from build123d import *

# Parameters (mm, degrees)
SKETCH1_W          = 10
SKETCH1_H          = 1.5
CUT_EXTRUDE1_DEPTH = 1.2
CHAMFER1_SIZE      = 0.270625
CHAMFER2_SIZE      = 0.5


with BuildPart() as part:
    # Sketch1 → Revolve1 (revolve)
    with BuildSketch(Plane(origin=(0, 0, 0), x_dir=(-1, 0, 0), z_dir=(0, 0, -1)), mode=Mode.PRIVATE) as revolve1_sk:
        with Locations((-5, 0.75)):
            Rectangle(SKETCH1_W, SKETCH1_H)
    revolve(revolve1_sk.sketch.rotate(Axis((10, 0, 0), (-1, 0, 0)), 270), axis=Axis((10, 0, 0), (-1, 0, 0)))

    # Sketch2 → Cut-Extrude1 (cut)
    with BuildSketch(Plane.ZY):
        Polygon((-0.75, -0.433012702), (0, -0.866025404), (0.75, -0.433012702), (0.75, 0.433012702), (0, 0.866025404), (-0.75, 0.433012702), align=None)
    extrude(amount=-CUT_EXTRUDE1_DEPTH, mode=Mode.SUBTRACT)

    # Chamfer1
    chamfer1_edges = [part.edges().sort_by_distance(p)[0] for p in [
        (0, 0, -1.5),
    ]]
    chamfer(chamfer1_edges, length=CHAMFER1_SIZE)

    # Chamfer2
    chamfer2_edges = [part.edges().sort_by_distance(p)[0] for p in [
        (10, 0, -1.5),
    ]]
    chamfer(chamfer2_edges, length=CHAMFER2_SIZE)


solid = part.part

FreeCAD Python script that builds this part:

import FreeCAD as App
import Part
import Sketcher
Q = App.Units.Quantity


def edges_at(feature, points):
    """Names of the edges that pass closest to the given points."""
    edges = feature.Shape.Edges
    near = lambda p: min(range(len(edges)), key=lambda i: edges[i].distToShape(Part.Vertex(*p))[0])
    return sorted({f"Edge{near(p) + 1}" for p in points})


def add_polygon(sketch, points):
    """Adds a closed chain of lines whose ends are joined by coincident constraints."""
    first, n = sketch.GeometryCount, len(points)
    for a, b in zip(points, points[1:] + points[:1]):
        sketch.addGeometry(Part.LineSegment(App.Vector(*a, 0), App.Vector(*b, 0)), False)
    for i in range(n):
        sketch.addConstraint(Sketcher.Constraint("Coincident", first + i, 2, first + (i + 1) % n, 1))

doc = App.newDocument("Part")
body = doc.addObject("PartDesign::Body", "Body")

sketch1 = body.newObject("Sketcher::SketchObject", "Sketch")
sketch1.AttachmentSupport = (doc.getObject("XY_Plane"), [""])
sketch1.MapMode = "FlatFace"
add_polygon(sketch1, [(10, 1.5), (10, 0), (0, 0), (0, 1.5)])
sketch1.addConstraint(Sketcher.Constraint("Vertical", 0))
sketch1.addConstraint(Sketcher.Constraint("Horizontal", 1))
sketch1.addConstraint(Sketcher.Constraint("Vertical", 2))
sketch1.addConstraint(Sketcher.Constraint("Horizontal", 3))
sketch1.addConstraint(Sketcher.Constraint("Coincident", 1, 2, -1, 1))
sketch1.addConstraint(Sketcher.Constraint("DistanceX", 1, 2, 1, 1, 10.0))
sketch1.addConstraint(Sketcher.Constraint("DistanceY", 0, 2, 0, 1, 1.5))
revolution = body.newObject("PartDesign::Revolution", "Revolution")
revolution.Profile = sketch1
revolution.ReferenceAxis = (sketch1, ["H_Axis"])
revolution.Angle = 360

sketch2 = body.newObject("Sketcher::SketchObject", "Sketch001")
sketch2.AttachmentSupport = (doc.getObject("YZ_Plane"), [""])
sketch2.MapMode = "FlatFace"
add_polygon(sketch2, [(-0.4, -0.8), (-0.9, 0), (-0.4, 0.8), (0.4, 0.8), (0.9, 0), (0.4, -0.8)])
sketch2.addConstraint(Sketcher.Constraint("Horizontal", 2))
sketch2.addConstraint(Sketcher.Constraint("Horizontal", 5))
sketch2.addConstraint(Sketcher.Constraint("Symmetric", 0, 2, 3, 2, -1, 1))
sketch2.addConstraint(Sketcher.Constraint("Symmetric", 1, 2, 4, 2, -1, 1))
sketch2.addConstraint(Sketcher.Constraint("PointOnObject", 0, 2, -1))
sketch2.addConstraint(Sketcher.Constraint("Parallel", 0, 3))
sketch2.addConstraint(Sketcher.Constraint("Vertical", 2, 2, 4, 2))
sketch2.addConstraint(Sketcher.Constraint("Angle", 0, Q("120 deg")))
sketch2.addConstraint(Sketcher.Constraint("DistanceY", 4, 2, 2, 2, 1.5))
sketch2.addConstraint(Sketcher.Constraint("DistanceX", 2, 1, 2, 2, 0.866025))
pocket1 = body.newObject("PartDesign::Pocket", "Pocket")
pocket1.Profile = sketch2
pocket1.Length = 1.2
pocket1.Reversed = True
doc.recompute()

chamfer = body.newObject("PartDesign::Chamfer", "Chamfer")
chamfer.Base = (pocket1, edges_at(pocket1, [(0, 0, -1.5)]))
chamfer.Size = 0.270625
doc.recompute()

chamfer2 = body.newObject("PartDesign::Chamfer", "Chamfer001")
chamfer2.Base = (chamfer, edges_at(chamfer, [(10, 0, -1.5)]))
chamfer2.Size = 0.5

doc.recompute()
